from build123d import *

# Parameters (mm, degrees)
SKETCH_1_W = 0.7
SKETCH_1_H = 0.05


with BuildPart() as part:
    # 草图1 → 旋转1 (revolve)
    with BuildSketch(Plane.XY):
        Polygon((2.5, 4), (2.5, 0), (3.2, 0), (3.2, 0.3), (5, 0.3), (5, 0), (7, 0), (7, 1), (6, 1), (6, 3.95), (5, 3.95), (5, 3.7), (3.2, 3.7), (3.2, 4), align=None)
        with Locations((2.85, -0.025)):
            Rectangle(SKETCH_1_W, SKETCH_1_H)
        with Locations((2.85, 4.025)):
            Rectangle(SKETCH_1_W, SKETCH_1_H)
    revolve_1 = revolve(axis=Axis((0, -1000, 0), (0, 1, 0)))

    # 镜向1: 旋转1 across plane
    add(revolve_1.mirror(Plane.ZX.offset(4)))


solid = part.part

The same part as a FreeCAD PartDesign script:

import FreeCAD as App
import Part
import Sketcher

V = App.Vector


def add_polygon(sketch, points):
    """Adds a closed chain of lines whose ends are joined by coincident constraints."""
    first, n = sketch.GeometryCount, len(points)
    for a, b in zip(points, points[1:] + points[:1]):
        sketch.addGeometry(Part.LineSegment(App.Vector(*a, 0), App.Vector(*b, 0)), False)
    for i in range(n):
        sketch.addConstraint(Sketcher.Constraint("Coincident", first + i, 2, first + (i + 1) % n, 1))

doc = App.newDocument("Part")
body = doc.addObject("PartDesign::Body", "Body")

# Sketch on XY plane
sketch1 = body.newObject("Sketcher::SketchObject", "Sketch")
sketch1.AttachmentSupport = (doc.getObject("XY_Plane"), [""])
sketch1.MapMode = "FlatFace"
add_polygon(sketch1, [(2.5, -0.05), (3.2, -0.05), (3.2, 0.3), (5, 0.3), (5, 0), (7, 0), (7, 1), (6, 1), (6, 3.95), (5, 3.95), (5, 3.7), (3.2, 3.7), (3.2, 4.05), (2.5, 4.05)])  # lines 0-13
sketch1.addConstraint(Sketcher.Constraint("Horizontal", 0))
sketch1.addConstraint(Sketcher.Constraint("Vertical", 1))
sketch1.addConstraint(Sketcher.Constraint("Horizontal", 2))
sketch1.addConstraint(Sketcher.Constraint("Vertical", 3))
sketch1.addConstraint(Sketcher.Constraint("Horizontal", 4))
sketch1.addConstraint(Sketcher.Constraint("Vertical", 5))
sketch1.addConstraint(Sketcher.Constraint("Horizontal", 6))
sketch1.addConstraint(Sketcher.Constraint("Vertical", 7))
sketch1.addConstraint(Sketcher.Constraint("Horizontal", 8))
sketch1.addConstraint(Sketcher.Constraint("Vertical", 9))
sketch1.addConstraint(Sketcher.Constraint("Horizontal", 10))
sketch1.addConstraint(Sketcher.Constraint("Vertical", 11))
sketch1.addConstraint(Sketcher.Constraint("Horizontal", 12))
sketch1.addConstraint(Sketcher.Constraint("Vertical", 13))
sketch1.addConstraint(Sketcher.Constraint("PointOnObject", 3, 2, -1))
sketch1.addConstraint(Sketcher.Constraint("Vertical", 3, 2, 8, 2))
sketch1.addConstraint(Sketcher.Constraint("Vertical", 1, 2, 10, 2))
sketch1.addConstraint(Sketcher.Constraint("Equal", 6, 8))
sketch1.addConstraint(Sketcher.Constraint("Equal", 8, 5))
sketch1.addConstraint(Sketcher.Constraint("Equal", 1, 11))
sketch1.addConstraint(Sketcher.Constraint("DistanceX", 4, 1, 4, 2, 2.0))
sketch1.addConstraint(Sketcher.Constraint("DistanceX", 0, 1, 0, 2, 0.7))
sketch1.addConstraint(Sketcher.Constraint("DistanceX", 2, 1, 2, 2, 1.8))
sketch1.addConstraint(Sketcher.Constraint("DistanceY", 3, 2, 3, 1, 0.3))
sketch1.addConstraint(Sketcher.Constraint("DistanceY", 13, 2, 13, 1, 4.1))
sketch1.addConstraint(Sketcher.Constraint("DistanceX", -1, 1, 2, 2, 5.0))
sketch1.addConstraint(Sketcher.Constraint("DistanceY", 1, 1, 1, 2, 0.35))
sketch1.addConstraint(Sketcher.Constraint("DistanceY", 7, 1, 7, 2, 2.95))
revolution = body.newObject("PartDesign::Revolution", "Revolution")
revolution.Profile = sketch1
revolution.ReferenceAxis = (sketch1, ["V_Axis"])
revolution.Angle = 360
doc.recompute()

datumplane = body.newObject("PartDesign::Plane", "DatumPlane")
datumplane.AttachmentSupport = (doc.getObject("XZ_Plane"), [""])
datumplane.MapMode = "FlatFace"
datumplane.AttachmentOffset = App.Placement(V(0, 0, -4), App.Rotation())
mirrored = body.newObject("PartDesign::Mirrored", "Mirrored")
mirrored.Originals = [revolution]
mirrored.MirrorPlane = (datumplane, [""])
body.Tip = mirrored

doc.recompute()
